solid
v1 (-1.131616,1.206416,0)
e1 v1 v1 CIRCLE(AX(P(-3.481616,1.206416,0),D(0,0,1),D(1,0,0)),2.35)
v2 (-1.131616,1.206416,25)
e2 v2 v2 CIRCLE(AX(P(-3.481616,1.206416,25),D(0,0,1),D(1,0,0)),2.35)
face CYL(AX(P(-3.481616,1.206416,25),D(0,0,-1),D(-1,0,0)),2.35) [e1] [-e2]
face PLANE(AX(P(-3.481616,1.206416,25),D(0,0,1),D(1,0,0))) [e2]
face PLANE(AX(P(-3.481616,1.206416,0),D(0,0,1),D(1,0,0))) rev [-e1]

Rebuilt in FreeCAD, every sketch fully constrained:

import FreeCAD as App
import Part
import Sketcher

V = App.Vector
Q = App.Units.Quantity

doc = App.newDocument("Part")
body = doc.addObject("PartDesign::Body", "Body")

# Sketch on XY plane
sketch1 = doc.addObject("Sketcher::SketchObject", "Sketch")
body.addObject(sketch1)
sketch1.AttachmentSupport = (doc.XY_Plane, [""])
sketch1.MapMode = "FlatFace"
sketch1.addGeometry(Part.Circle(V(-3.5, 1.2, 0), V(0, 0, 1), 2.4), False)
sketch1.addConstraint([
    Sketcher.Constraint("Diameter", 0, Q("4.7 mm")),
    Sketcher.Constraint("DistanceX", 0, 3, -1, 1, Q("3.481616 mm")),
    Sketcher.Constraint("DistanceY", -1, 1, 0, 3, Q("1.206416 mm")),
])
pad1 = doc.addObject("PartDesign::Pad", "Pad")
body.addObject(pad1)
pad1.Profile = sketch1
pad1.Length = 25

doc.recompute()
